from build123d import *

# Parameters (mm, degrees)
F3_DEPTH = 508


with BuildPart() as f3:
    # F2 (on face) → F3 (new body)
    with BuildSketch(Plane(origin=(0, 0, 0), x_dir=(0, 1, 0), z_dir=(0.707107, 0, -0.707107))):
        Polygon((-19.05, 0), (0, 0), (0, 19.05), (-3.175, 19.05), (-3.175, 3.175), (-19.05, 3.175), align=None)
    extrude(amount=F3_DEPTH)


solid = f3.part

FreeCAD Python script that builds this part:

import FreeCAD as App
import Part
import Sketcher

V = App.Vector
Q = App.Units.Quantity

doc = App.newDocument("Part")
params = doc.addObject("Spreadsheet::Sheet", "Params")
for row, (alias, value) in enumerate([
    ("sketch1_width", "0.75 in"),
    ("sketch1_width2", "0.125 in"),
    ("pad1_length", "20 in"),
], start=1):
    params.set(f"A{row}", alias)
    params.set(f"B{row}", "=" + value)
    params.setAlias(f"B{row}", alias)

body = doc.addObject("PartDesign::Body", "Body")

# Sketch on an angled plane
sketch1 = doc.addObject("Sketcher::SketchObject", "Sketch")
body.addObject(sketch1)
sketch1.Placement = App.Placement(V(0, 0, 0), App.Rotation(V(0, 1, 0), V(0.707106781, 0, 0.707106781), V(0.707106781, 0, -0.707106781), "ZXY"))
sketch1.addGeometry([
    Part.LineSegment(V(-19.1, 0, 0), V(0, 0, 0)),  # 0
    Part.LineSegment(V(0, 0, 0), V(0, 19, 0)),  # 1
    Part.LineSegment(V(0, 19, 0), V(-3.2, 19, 0)),  # 2
    Part.LineSegment(V(-3.2, 19, 0), V(-3.2, 3.2, 0)),  # 3
    Part.LineSegment(V(-3.2, 3.2, 0), V(-19.1, 3.2, 0)),  # 4
    Part.LineSegment(V(-19.1, 3.2, 0), V(-19.1, 0, 0)),  # 5
], False)
sketch1.addConstraint([
    Sketcher.Constraint("Coincident", 0, 2, 1, 1),
    Sketcher.Constraint("Coincident", 1, 2, 2, 1),
    Sketcher.Constraint("Coincident", 2, 2, 3, 1),
    Sketcher.Constraint("Coincident", 3, 2, 4, 1),
    Sketcher.Constraint("Coincident", 4, 2, 5, 1),
    Sketcher.Constraint("Coincident", 5, 2, 0, 1),
    Sketcher.Constraint("Horizontal", 0),
    Sketcher.Constraint("Vertical", 1),
    Sketcher.Constraint("Horizontal", 2),
    Sketcher.Constraint("Vertical", 3),
    Sketcher.Constraint("Horizontal", 4),
    Sketcher.Constraint("Vertical", 5),
    Sketcher.Constraint("Coincident", 0, 2, -1, 1),
    Sketcher.Constraint("Equal", 0, 1),
    Sketcher.Constraint("Equal", 4, 3),
    Sketcher.Constraint("DistanceX", 0, 1, 0, 2, Q("0.75 in")),
    Sketcher.Constraint("DistanceX", 2, 2, 2, 1, Q("0.125 in")),
])
sketch1.setExpression("Constraints[15]", "Params.sketch1_width")
sketch1.setExpression("Constraints[16]", "Params.sketch1_width2")
pad1 = doc.addObject("PartDesign::Pad", "Pad")
body.addObject(pad1)
pad1.Profile = sketch1
pad1.setExpression("Length", "Params.pad1_length")

doc.recompute()
